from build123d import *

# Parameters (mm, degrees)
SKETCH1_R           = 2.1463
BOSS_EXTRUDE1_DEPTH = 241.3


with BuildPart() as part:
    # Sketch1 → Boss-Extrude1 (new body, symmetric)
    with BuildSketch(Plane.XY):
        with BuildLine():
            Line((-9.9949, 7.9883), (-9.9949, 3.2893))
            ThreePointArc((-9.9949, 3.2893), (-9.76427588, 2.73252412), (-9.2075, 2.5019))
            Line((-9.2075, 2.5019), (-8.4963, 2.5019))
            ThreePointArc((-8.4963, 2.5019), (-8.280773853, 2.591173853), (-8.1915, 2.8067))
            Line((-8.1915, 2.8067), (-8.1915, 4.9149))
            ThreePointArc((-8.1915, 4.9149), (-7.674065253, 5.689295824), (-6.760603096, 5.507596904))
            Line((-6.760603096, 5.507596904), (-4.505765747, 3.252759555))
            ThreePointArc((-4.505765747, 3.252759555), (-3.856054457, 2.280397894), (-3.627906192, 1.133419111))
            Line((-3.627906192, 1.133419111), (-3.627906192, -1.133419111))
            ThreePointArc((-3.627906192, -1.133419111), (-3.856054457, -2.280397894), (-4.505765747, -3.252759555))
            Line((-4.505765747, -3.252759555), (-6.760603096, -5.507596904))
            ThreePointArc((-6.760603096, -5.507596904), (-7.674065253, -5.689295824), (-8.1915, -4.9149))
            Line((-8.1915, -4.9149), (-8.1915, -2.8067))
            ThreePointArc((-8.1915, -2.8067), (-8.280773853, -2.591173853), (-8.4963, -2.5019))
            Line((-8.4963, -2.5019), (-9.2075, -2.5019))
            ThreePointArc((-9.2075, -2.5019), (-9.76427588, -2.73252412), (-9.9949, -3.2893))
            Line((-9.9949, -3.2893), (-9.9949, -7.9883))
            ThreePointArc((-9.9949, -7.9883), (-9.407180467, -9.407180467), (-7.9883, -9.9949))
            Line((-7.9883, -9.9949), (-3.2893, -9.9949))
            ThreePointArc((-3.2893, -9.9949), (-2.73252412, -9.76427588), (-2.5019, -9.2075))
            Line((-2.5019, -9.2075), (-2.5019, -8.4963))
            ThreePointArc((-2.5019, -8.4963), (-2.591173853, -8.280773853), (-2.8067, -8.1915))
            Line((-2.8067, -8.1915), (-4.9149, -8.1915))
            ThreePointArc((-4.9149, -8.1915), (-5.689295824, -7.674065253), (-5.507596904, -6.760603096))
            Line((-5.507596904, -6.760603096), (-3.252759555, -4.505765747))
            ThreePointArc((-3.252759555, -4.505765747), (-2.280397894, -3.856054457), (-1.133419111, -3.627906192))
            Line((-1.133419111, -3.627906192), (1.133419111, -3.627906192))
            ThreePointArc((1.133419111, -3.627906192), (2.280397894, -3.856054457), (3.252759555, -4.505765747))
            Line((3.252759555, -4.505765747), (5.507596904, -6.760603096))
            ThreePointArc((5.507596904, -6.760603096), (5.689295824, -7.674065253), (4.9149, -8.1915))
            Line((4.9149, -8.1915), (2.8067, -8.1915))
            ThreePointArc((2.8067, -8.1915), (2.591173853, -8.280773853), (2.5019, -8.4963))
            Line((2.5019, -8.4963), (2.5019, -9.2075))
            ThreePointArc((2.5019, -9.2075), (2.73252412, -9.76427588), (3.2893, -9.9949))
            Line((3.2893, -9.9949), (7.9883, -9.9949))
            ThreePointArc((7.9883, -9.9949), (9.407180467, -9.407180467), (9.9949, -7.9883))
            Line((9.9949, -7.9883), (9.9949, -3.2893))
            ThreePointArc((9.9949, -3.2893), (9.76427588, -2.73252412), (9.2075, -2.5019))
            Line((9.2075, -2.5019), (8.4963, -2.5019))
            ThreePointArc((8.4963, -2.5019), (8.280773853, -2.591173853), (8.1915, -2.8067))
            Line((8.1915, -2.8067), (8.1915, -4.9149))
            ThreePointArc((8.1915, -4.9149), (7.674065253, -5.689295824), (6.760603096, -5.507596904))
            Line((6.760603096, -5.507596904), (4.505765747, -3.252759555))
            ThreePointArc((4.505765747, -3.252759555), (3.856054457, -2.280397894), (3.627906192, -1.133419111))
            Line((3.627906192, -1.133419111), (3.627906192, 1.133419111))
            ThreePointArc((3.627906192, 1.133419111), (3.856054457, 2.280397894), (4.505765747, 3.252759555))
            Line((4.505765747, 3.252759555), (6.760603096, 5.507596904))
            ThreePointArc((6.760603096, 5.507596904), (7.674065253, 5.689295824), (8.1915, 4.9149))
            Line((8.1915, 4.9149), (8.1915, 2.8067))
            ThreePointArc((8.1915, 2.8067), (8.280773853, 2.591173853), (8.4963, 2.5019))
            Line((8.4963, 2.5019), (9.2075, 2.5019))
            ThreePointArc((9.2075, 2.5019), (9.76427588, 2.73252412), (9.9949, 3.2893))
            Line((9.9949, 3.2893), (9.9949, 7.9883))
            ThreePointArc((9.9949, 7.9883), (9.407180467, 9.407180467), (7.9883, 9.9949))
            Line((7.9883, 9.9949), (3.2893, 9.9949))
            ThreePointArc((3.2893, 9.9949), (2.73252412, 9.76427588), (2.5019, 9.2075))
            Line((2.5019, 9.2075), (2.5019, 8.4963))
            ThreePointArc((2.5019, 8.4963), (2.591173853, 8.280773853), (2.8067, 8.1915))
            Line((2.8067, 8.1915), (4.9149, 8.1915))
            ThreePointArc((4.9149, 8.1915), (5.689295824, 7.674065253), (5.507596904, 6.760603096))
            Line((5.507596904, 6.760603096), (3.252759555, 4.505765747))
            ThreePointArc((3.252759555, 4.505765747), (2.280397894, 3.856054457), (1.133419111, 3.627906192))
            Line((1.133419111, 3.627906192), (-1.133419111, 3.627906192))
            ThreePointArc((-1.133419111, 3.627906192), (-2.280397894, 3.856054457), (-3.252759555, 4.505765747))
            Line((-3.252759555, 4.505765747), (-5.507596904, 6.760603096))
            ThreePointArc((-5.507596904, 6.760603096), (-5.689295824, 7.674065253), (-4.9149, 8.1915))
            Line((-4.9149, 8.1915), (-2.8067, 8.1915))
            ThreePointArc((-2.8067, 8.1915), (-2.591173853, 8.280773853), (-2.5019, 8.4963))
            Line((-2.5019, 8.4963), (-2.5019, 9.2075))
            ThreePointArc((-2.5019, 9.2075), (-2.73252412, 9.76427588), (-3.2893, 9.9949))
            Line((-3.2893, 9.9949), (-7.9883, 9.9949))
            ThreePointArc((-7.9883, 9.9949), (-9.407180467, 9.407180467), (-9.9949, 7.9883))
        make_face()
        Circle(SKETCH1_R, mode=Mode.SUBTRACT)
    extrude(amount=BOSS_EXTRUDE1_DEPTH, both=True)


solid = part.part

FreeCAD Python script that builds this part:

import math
import FreeCAD as App
import Part
import Sketcher
from FreeCAD import Vector
Q = App.Units.Quantity

doc = App.newDocument("Part")
body = doc.addObject("PartDesign::Body", "Body")

sketch1 = doc.addObject("Sketcher::SketchObject", "Sketch")
body.addObject(sketch1)
sketch1.AttachmentSupport = (doc.XY_Plane, [""])
sketch1.MapMode = "FlatFace"
sketch1.addGeometry([
    Part.LineSegment(Vector(-9.99, 7.99, 0), Vector(-9.99, 3.29, 0)),
    Part.ArcOfCircle(Part.Circle(Vector(-9.21, 3.29, 0), Vector(0, 0, 1), 0.79), math.radians(180), math.radians(270)),
    Part.LineSegment(Vector(-9.21, 2.5, 0), Vector(-8.5, 2.5, 0)),
    Part.ArcOfCircle(Part.Circle(Vector(-8.5, 2.81, 0), Vector(0, 0, 1), 0.3), math.radians(-90), math.radians(0)),
    Part.LineSegment(Vector(-8.19, 2.81, 0), Vector(-8.19, 4.91, 0)),
    Part.ArcOfCircle(Part.Circle(Vector(-7.35, 4.91, 0), Vector(0, 0, 1), 0.84), math.radians(45), math.radians(180)),
    Part.LineSegment(Vector(-6.76, 5.51, 0), Vector(-4.51, 3.25, 0)),
    Part.ArcOfCircle(Part.Circle(Vector(-6.63, 1.13, 0), Vector(0, 0, 1), 3), math.radians(0), math.radians(45)),
    Part.LineSegment(Vector(-3.63, 1.13, 0), Vector(-3.63, -1.13, 0)),
    Part.ArcOfCircle(Part.Circle(Vector(-6.63, -1.13, 0), Vector(0, 0, 1), 3), math.radians(-45), math.radians(0)),
    Part.LineSegment(Vector(-4.51, -3.25, 0), Vector(-6.76, -5.51, 0)),
    Part.ArcOfCircle(Part.Circle(Vector(-7.35, -4.91, 0), Vector(0, 0, 1), 0.84), math.radians(180), math.radians(315)),
    Part.LineSegment(Vector(-8.19, -4.91, 0), Vector(-8.19, -2.81, 0)),
    Part.ArcOfCircle(Part.Circle(Vector(-8.5, -2.81, 0), Vector(0, 0, 1), 0.3), math.radians(0), math.radians(90)),
    Part.LineSegment(Vector(-8.5, -2.5, 0), Vector(-9.21, -2.5, 0)),
    Part.ArcOfCircle(Part.Circle(Vector(-9.21, -3.29, 0), Vector(0, 0, 1), 0.79), math.radians(90), math.radians(180)),
    Part.LineSegment(Vector(-9.99, -3.29, 0), Vector(-9.99, -7.99, 0)),
    Part.ArcOfCircle(Part.Circle(Vector(-7.99, -7.99, 0), Vector(0, 0, 1), 2.01), math.radians(180), math.radians(270)),
    Part.LineSegment(Vector(-7.99, -9.99, 0), Vector(-3.29, -9.99, 0)),
    Part.ArcOfCircle(Part.Circle(Vector(-3.29, -9.21, 0), Vector(0, 0, 1), 0.79), math.radians(-90), math.radians(0)),
    Part.LineSegment(Vector(-2.5, -9.21, 0), Vector(-2.5, -8.5, 0)),
    Part.ArcOfCircle(Part.Circle(Vector(-2.81, -8.5, 0), Vector(0, 0, 1), 0.3), math.radians(0), math.radians(90)),
    Part.LineSegment(Vector(-2.81, -8.19, 0), Vector(-4.91, -8.19, 0)),
    Part.ArcOfCircle(Part.Circle(Vector(-4.91, -7.35, 0), Vector(0, 0, 1), 0.84), math.radians(135), math.radians(270)),
    Part.LineSegment(Vector(-5.51, -6.76, 0), Vector(-3.25, -4.51, 0)),
    Part.ArcOfCircle(Part.Circle(Vector(-1.13, -6.63, 0), Vector(0, 0, 1), 3), math.radians(90), math.radians(135)),
    Part.LineSegment(Vector(-1.13, -3.63, 0), Vector(1.13, -3.63, 0)),
    Part.ArcOfCircle(Part.Circle(Vector(1.13, -6.63, 0), Vector(0, 0, 1), 3), math.radians(45), math.radians(90)),
    Part.LineSegment(Vector(3.25, -4.51, 0), Vector(5.51, -6.76, 0)),
    Part.ArcOfCircle(Part.Circle(Vector(4.91, -7.35, 0), Vector(0, 0, 1), 0.84), math.radians(-90), math.radians(45)),
    Part.LineSegment(Vector(4.91, -8.19, 0), Vector(2.81, -8.19, 0)),
    Part.ArcOfCircle(Part.Circle(Vector(2.81, -8.5, 0), Vector(0, 0, 1), 0.3), math.radians(90), math.radians(180)),
    Part.LineSegment(Vector(2.5, -8.5, 0), Vector(2.5, -9.21, 0)),
    Part.ArcOfCircle(Part.Circle(Vector(3.29, -9.21, 0), Vector(0, 0, 1), 0.79), math.radians(180), math.radians(270)),
    Part.LineSegment(Vector(3.29, -9.99, 0), Vector(7.99, -9.99, 0)),
    Part.ArcOfCircle(Part.Circle(Vector(7.99, -7.99, 0), Vector(0, 0, 1), 2.01), math.radians(-90), math.radians(0)),
    Part.LineSegment(Vector(9.99, -7.99, 0), Vector(9.99, -3.29, 0)),
    Part.ArcOfCircle(Part.Circle(Vector(9.21, -3.29, 0), Vector(0, 0, 1), 0.79), math.radians(0), math.radians(90)),
    Part.LineSegment(Vector(9.21, -2.5, 0), Vector(8.5, -2.5, 0)),
    Part.ArcOfCircle(Part.Circle(Vector(8.5, -2.81, 0), Vector(0, 0, 1), 0.3), math.radians(90), math.radians(180)),
    Part.LineSegment(Vector(8.19, -2.81, 0), Vector(8.19, -4.91, 0)),
    Part.ArcOfCircle(Part.Circle(Vector(7.35, -4.91, 0), Vector(0, 0, 1), 0.84), math.radians(-135), math.radians(0)),
    Part.LineSegment(Vector(6.76, -5.51, 0), Vector(4.51, -3.25, 0)),
    Part.ArcOfCircle(Part.Circle(Vector(6.63, -1.13, 0), Vector(0, 0, 1), 3), math.radians(180), math.radians(225)),
    Part.LineSegment(Vector(3.63, -1.13, 0), Vector(3.63, 1.13, 0)),
    Part.ArcOfCircle(Part.Circle(Vector(6.63, 1.13, 0), Vector(0, 0, 1), 3), math.radians(135), math.radians(180)),
    Part.LineSegment(Vector(4.51, 3.25, 0), Vector(6.76, 5.51, 0)),
    Part.ArcOfCircle(Part.Circle(Vector(7.35, 4.91, 0), Vector(0, 0, 1), 0.84), math.radians(0), math.radians(135)),
    Part.LineSegment(Vector(8.19, 4.91, 0), Vector(8.19, 2.81, 0)),
    Part.ArcOfCircle(Part.Circle(Vector(8.5, 2.81, 0), Vector(0, 0, 1), 0.3), math.radians(180), math.radians(270)),
    Part.LineSegment(Vector(8.5, 2.5, 0), Vector(9.21, 2.5, 0)),
    Part.ArcOfCircle(Part.Circle(Vector(9.21, 3.29, 0), Vector(0, 0, 1), 0.79), math.radians(-90), math.radians(0)),
    Part.LineSegment(Vector(9.99, 3.29, 0), Vector(9.99, 7.99, 0)),
    Part.ArcOfCircle(Part.Circle(Vector(7.99, 7.99, 0), Vector(0, 0, 1), 2.01), math.radians(0), math.radians(90)),
    Part.LineSegment(Vector(7.99, 9.99, 0), Vector(3.29, 9.99, 0)),
    Part.ArcOfCircle(Part.Circle(Vector(3.29, 9.21, 0), Vector(0, 0, 1), 0.79), math.radians(90), math.radians(180)),
    Part.LineSegment(Vector(2.5, 9.21, 0), Vector(2.5, 8.5, 0)),
    Part.ArcOfCircle(Part.Circle(Vector(2.81, 8.5, 0), Vector(0, 0, 1), 0.3), math.radians(180), math.radians(270)),
    Part.LineSegment(Vector(2.81, 8.19, 0), Vector(4.91, 8.19, 0)),
    Part.ArcOfCircle(Part.Circle(Vector(4.91, 7.35, 0), Vector(0, 0, 1), 0.84), math.radians(-45), math.radians(90)),
    Part.LineSegment(Vector(5.51, 6.76, 0), Vector(3.25, 4.51, 0)),
    Part.ArcOfCircle(Part.Circle(Vector(1.13, 6.63, 0), Vector(0, 0, 1), 3), math.radians(-90), math.radians(-45)),
    Part.LineSegment(Vector(1.13, 3.63, 0), Vector(-1.13, 3.63, 0)),
    Part.ArcOfCircle(Part.Circle(Vector(-1.13, 6.63, 0), Vector(0, 0, 1), 3), math.radians(-135), math.radians(-90)),
    Part.LineSegment(Vector(-3.25, 4.51, 0), Vector(-5.51, 6.76, 0)),
    Part.ArcOfCircle(Part.Circle(Vector(-4.91, 7.35, 0), Vector(0, 0, 1), 0.84), math.radians(90), math.radians(225)),
    Part.LineSegment(Vector(-4.91, 8.19, 0), Vector(-2.81, 8.19, 0)),
    Part.ArcOfCircle(Part.Circle(Vector(-2.81, 8.5, 0), Vector(0, 0, 1), 0.3), math.radians(-90), math.radians(0)),
    Part.LineSegment(Vector(-2.5, 8.5, 0), Vector(-2.5, 9.21, 0)),
    Part.ArcOfCircle(Part.Circle(Vector(-3.29, 9.21, 0), Vector(0, 0, 1), 0.79), math.radians(0), math.radians(90)),
    Part.LineSegment(Vector(-3.29, 9.99, 0), Vector(-7.99, 9.99, 0)),
    Part.ArcOfCircle(Part.Circle(Vector(-7.99, 7.99, 0), Vector(0, 0, 1), 2.01), math.radians(90), math.radians(180)),
    Part.Circle(Vector(0, 0, 0), Vector(0, 0, 1), 2.15),
], False)
sketch1.addConstraint([
    Sketcher.Constraint("Tangent", 0, 2, 1, 1),
    Sketcher.Constraint("Tangent", 1, 2, 2, 1),
    Sketcher.Constraint("Tangent", 2, 2, 3, 1),
    Sketcher.Constraint("Tangent", 3, 2, 4, 1),
    Sketcher.Constraint("Tangent", 4, 2, 5, 2),
    Sketcher.Constraint("Tangent", 5, 1, 6, 1),
    Sketcher.Constraint("Tangent", 6, 2, 7, 2),
    Sketcher.Constraint("Tangent", 7, 1, 8, 1),
    Sketcher.Constraint("Tangent", 8, 2, 9, 2),
    Sketcher.Constraint("Tangent", 9, 1, 10, 1),
    Sketcher.Constraint("Tangent", 10, 2, 11, 2),
    Sketcher.Constraint("Tangent", 11, 1, 12, 1),
    Sketcher.Constraint("Tangent", 12, 2, 13, 1),
    Sketcher.Constraint("Tangent", 13, 2, 14, 1),
    Sketcher.Constraint("Tangent", 14, 2, 15, 1),
    Sketcher.Constraint("Tangent", 15, 2, 16, 1),
    Sketcher.Constraint("Tangent", 16, 2, 17, 1),
    Sketcher.Constraint("Tangent", 17, 2, 18, 1),
    Sketcher.Constraint("Tangent", 18, 2, 19, 1),
    Sketcher.Constraint("Tangent", 19, 2, 20, 1),
    Sketcher.Constraint("Tangent", 20, 2, 21, 1),
    Sketcher.Constraint("Tangent", 21, 2, 22, 1),
    Sketcher.Constraint("Tangent", 22, 2, 23, 2),
    Sketcher.Constraint("Tangent", 23, 1, 24, 1),
    Sketcher.Constraint("Tangent", 24, 2, 25, 2),
    Sketcher.Constraint("Tangent", 25, 1, 26, 1),
    Sketcher.Constraint("Tangent", 26, 2, 27, 2),
    Sketcher.Constraint("Tangent", 27, 1, 28, 1),
    Sketcher.Constraint("Tangent", 28, 2, 29, 2),
    Sketcher.Constraint("Tangent", 29, 1, 30, 1),
    Sketcher.Constraint("Tangent", 30, 2, 31, 1),
    Sketcher.Constraint("Tangent", 31, 2, 32, 1),
    Sketcher.Constraint("Tangent", 32, 2, 33, 1),
    Sketcher.Constraint("Tangent", 33, 2, 34, 1),
    Sketcher.Constraint("Tangent", 34, 2, 35, 1),
    Sketcher.Constraint("Tangent", 35, 2, 36, 1),
    Sketcher.Constraint("Tangent", 36, 2, 37, 1),
    Sketcher.Constraint("Tangent", 37, 2, 38, 1),
    Sketcher.Constraint("Tangent", 38, 2, 39, 1),
    Sketcher.Constraint("Tangent", 39, 2, 40, 1),
    Sketcher.Constraint("Tangent", 40, 2, 41, 2),
    Sketcher.Constraint("Tangent", 41, 1, 42, 1),
    Sketcher.Constraint("Tangent", 42, 2, 43, 2),
    Sketcher.Constraint("Tangent", 43, 1, 44, 1),
    Sketcher.Constraint("Tangent", 44, 2, 45, 2),
    Sketcher.Constraint("Tangent", 45, 1, 46, 1),
    Sketcher.Constraint("Tangent", 46, 2, 47, 2),
    Sketcher.Constraint("Tangent", 47, 1, 48, 1),
    Sketcher.Constraint("Tangent", 48, 2, 49, 1),
    Sketcher.Constraint("Tangent", 49, 2, 50, 1),
    Sketcher.Constraint("Tangent", 50, 2, 51, 1),
    Sketcher.Constraint("Tangent", 51, 2, 52, 1),
    Sketcher.Constraint("Tangent", 52, 2, 53, 1),
    Sketcher.Constraint("Tangent", 53, 2, 54, 1),
    Sketcher.Constraint("Tangent", 54, 2, 55, 1),
    Sketcher.Constraint("Tangent", 55, 2, 56, 1),
    Sketcher.Constraint("Tangent", 56, 2, 57, 1),
    Sketcher.Constraint("Tangent", 57, 2, 58, 1),
    Sketcher.Constraint("Tangent", 58, 2, 59, 2),
    Sketcher.Constraint("Tangent", 59, 1, 60, 1),
    Sketcher.Constraint("Tangent", 60, 2, 61, 2),
    Sketcher.Constraint("Tangent", 61, 1, 62, 1),
    Sketcher.Constraint("Tangent", 62, 2, 63, 2),
    Sketcher.Constraint("Tangent", 63, 1, 64, 1),
    Sketcher.Constraint("Tangent", 64, 2, 65, 2),
    Sketcher.Constraint("Tangent", 65, 1, 66, 1),
    Sketcher.Constraint("Tangent", 66, 2, 67, 1),
    Sketcher.Constraint("Tangent", 67, 2, 68, 1),
    Sketcher.Constraint("Tangent", 68, 2, 69, 1),
    Sketcher.Constraint("Tangent", 69, 2, 70, 1),
    Sketcher.Constraint("Tangent", 70, 2, 71, 1),
    Sketcher.Constraint("Tangent", 71, 2, 0, 1),
    Sketcher.Constraint("Vertical", 0),
    Sketcher.Constraint("Horizontal", 2),
    Sketcher.Constraint("Vertical", 4),
    Sketcher.Constraint("Vertical", 8),
    Sketcher.Constraint("Vertical", 12),
    Sketcher.Constraint("Horizontal", 14),
    Sketcher.Constraint("Vertical", 16),
    Sketcher.Constraint("Horizontal", 18),
    Sketcher.Constraint("Vertical", 20),
    Sketcher.Constraint("Horizontal", 22),
    Sketcher.Constraint("Horizontal", 26),
    Sketcher.Constraint("Horizontal", 30),
    Sketcher.Constraint("Vertical", 32),
    Sketcher.Constraint("Horizontal", 34),
    Sketcher.Constraint("Vertical", 36),
    Sketcher.Constraint("Horizontal", 38),
    Sketcher.Constraint("Vertical", 40),
    Sketcher.Constraint("Vertical", 44),
    Sketcher.Constraint("Vertical", 48),
    Sketcher.Constraint("Horizontal", 50),
    Sketcher.Constraint("Vertical", 52),
    Sketcher.Constraint("Horizontal", 54),
    Sketcher.Constraint("Vertical", 56),
    Sketcher.Constraint("Horizontal", 58),
    Sketcher.Constraint("Horizontal", 62),
    Sketcher.Constraint("Horizontal", 66),
    Sketcher.Constraint("Vertical", 68),
    Sketcher.Constraint("Horizontal", 70),
    Sketcher.Constraint("Coincident", 72, 3, -1, 1),
    Sketcher.Constraint("Equal", 7, 9),
    Sketcher.Constraint("Equal", 5, 11),
    Sketcher.Constraint("Equal", 3, 13),
    Sketcher.Constraint("Equal", 1, 15),
    Sketcher.Constraint("Equal", 15, 19),
    Sketcher.Constraint("Equal", 13, 21),
    Sketcher.Constraint("Equal", 11, 23),
    Sketcher.Constraint("Equal", 9, 25),
    Sketcher.Constraint("Equal", 25, 27),
    Sketcher.Constraint("Equal", 23, 29),
    Sketcher.Constraint("Equal", 21, 31),
    Sketcher.Constraint("Equal", 19, 33),
    Sketcher.Constraint("Equal", 17, 35),
    Sketcher.Constraint("Equal", 33, 37),
    Sketcher.Constraint("Equal", 31, 39),
    Sketcher.Constraint("Equal", 29, 41),
    Sketcher.Constraint("Equal", 27, 43),
    Sketcher.Constraint("Equal", 43, 45),
    Sketcher.Constraint("Equal", 41, 47),
    Sketcher.Constraint("Equal", 39, 49),
    Sketcher.Constraint("Equal", 37, 51),
    Sketcher.Constraint("Equal", 35, 53),
    Sketcher.Constraint("Equal", 51, 55),
    Sketcher.Constraint("Equal", 49, 57),
    Sketcher.Constraint("Equal", 47, 59),
    Sketcher.Constraint("Equal", 45, 61),
    Sketcher.Constraint("Equal", 61, 63),
    Sketcher.Constraint("Equal", 59, 65),
    Sketcher.Constraint("Equal", 57, 67),
    Sketcher.Constraint("Equal", 55, 69),
    Sketcher.Constraint("Equal", 53, 71),
    Sketcher.Constraint("Symmetric", 1, 3, 37, 3, -1, 1),
    Sketcher.Constraint("Symmetric", 5, 3, 41, 3, -1, 1),
    Sketcher.Constraint("Symmetric", 7, 3, 43, 3, -1, 1),
    Sketcher.Constraint("Symmetric", 11, 3, 47, 3, -1, 1),
    Sketcher.Constraint("Symmetric", 15, 3, 51, 3, -1, 1),
    Sketcher.Constraint("Symmetric", 19, 3, 55, 3, -1, 1),
    Sketcher.Constraint("Symmetric", 23, 3, 59, 3, -1, 1),
    Sketcher.Constraint("Symmetric", 25, 3, 61, 3, -1, 1),
    Sketcher.Constraint("Symmetric", 29, 3, 65, 3, -1, 1),
    Sketcher.Constraint("Symmetric", 33, 3, 69, 3, -1, 1),
    Sketcher.Constraint("Symmetric", 23, 3, 29, 3, -2),
    Sketcher.Constraint("Symmetric", 19, 3, 33, 3, -2),
    Sketcher.Constraint("Symmetric", 15, 3, 37, 3, -2),
    Sketcher.Constraint("Symmetric", 11, 3, 41, 3, -2),
    Sketcher.Constraint("Perpendicular", 6, 10),
    Sketcher.Constraint("Parallel", 10, 24),
    Sketcher.Constraint("Perpendicular", 24, 28),
    Sketcher.Constraint("Perpendicular", 42, 46),
    Sketcher.Constraint("Perpendicular", 60, 64),
    Sketcher.Constraint("Horizontal", 9, 3, 43, 3),
    Sketcher.Constraint("Equal", 70, 0),
    Sketcher.Constraint("Equal", 66, 4),
    Sketcher.Constraint("Equal", 62, 8),
    Sketcher.Constraint("Equal", 50, 20),
    Sketcher.Constraint("Equal", 10, 24),
    Sketcher.Constraint("Diameter", 72, Q("0.169 in")),
    Sketcher.Constraint("Radius", 1, Q("0.031 in")),
    Sketcher.Constraint("Radius", 3, Q("0.012 in")),
    Sketcher.Constraint("Radius", 5, Q("0.033 in")),
    Sketcher.Constraint("Radius", 7, Q("0.118 in")),
    Sketcher.Constraint("Radius", 17, Q("0.079 in")),
    Sketcher.Constraint("DistanceX", 2, 1, 2, 2, Q("0.028 in")),
    Sketcher.Constraint("DistanceX", 18, 1, 18, 2, Q("0.185 in")),
    Sketcher.Constraint("DistanceX", 22, 2, 22, 1, Q("0.083 in")),
    Sketcher.Constraint("DistanceX", 1, 3, -1, 1, Q("0.3625 in")),
    Sketcher.Constraint("DistanceX", 26, 1, 26, 2, Q("2.266838 mm")),
])
pad1 = doc.addObject("PartDesign::Pad", "Pad")
body.addObject(pad1)
pad1.Profile = sketch1
pad1.Length = Q("19 in")
pad1.Midplane = True

doc.recompute()
